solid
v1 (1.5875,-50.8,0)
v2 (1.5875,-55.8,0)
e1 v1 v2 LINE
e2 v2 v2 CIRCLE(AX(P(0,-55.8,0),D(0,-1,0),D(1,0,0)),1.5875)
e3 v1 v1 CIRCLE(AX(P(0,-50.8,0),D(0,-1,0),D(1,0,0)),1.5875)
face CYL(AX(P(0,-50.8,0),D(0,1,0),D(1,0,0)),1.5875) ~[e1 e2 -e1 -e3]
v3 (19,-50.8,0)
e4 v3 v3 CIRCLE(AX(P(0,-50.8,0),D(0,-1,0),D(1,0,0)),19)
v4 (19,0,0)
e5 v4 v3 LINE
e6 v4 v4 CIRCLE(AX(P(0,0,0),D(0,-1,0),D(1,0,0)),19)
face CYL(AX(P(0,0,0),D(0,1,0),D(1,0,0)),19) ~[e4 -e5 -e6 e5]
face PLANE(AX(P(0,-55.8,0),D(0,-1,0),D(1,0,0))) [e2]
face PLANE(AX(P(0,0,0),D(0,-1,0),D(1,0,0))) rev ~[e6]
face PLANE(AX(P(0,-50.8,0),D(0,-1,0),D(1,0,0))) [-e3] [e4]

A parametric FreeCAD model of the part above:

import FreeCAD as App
import Part
import Sketcher
Q = App.Units.Quantity

doc = App.newDocument("Part")
params = doc.addObject("Spreadsheet::Sheet", "Params")
for row, (alias, value) in enumerate([
    ("sketch1_diameter", "38 mm"),
    ("pad1_length", "50.8 mm"),
    ("pad2_length", "5 mm"),
], start=1):
    params.set(f"A{row}", alias)
    params.set(f"B{row}", "=" + value)
    params.setAlias(f"B{row}", alias)

body = doc.addObject("PartDesign::Body", "Body")

# Sketch on XZ plane
sketch1 = body.newObject("Sketcher::SketchObject", "Sketch")
sketch1.AttachmentSupport = (doc.getObject("XZ_Plane"), [""])
sketch1.MapMode = "FlatFace"
sketch1.addGeometry(Part.Circle(App.Vector(0, 0, 0), App.Vector(0, 0, 1), 19), False)
sketch1.addConstraint([
    Sketcher.Constraint("Coincident", 0, 3, -1, 1),
    Sketcher.Constraint("Diameter", 0, Q("38 mm")),
])
sketch1.setExpression("Constraints[1]", "Params.sketch1_diameter")
pad1 = body.newObject("PartDesign::Pad", "Pad")
pad1.Profile = sketch1
pad1.setExpression("Length", "Params.pad1_length")

# Sketch on XZ plane
sketch2 = body.newObject("Sketcher::SketchObject", "Sketch001")
sketch2.AttachmentSupport = (doc.getObject("XZ_Plane"), [""])
sketch2.MapMode = "FlatFace"
sketch2.AttachmentOffset = App.Placement(App.Vector(0, 0, 50.8), App.Rotation())
sketch2.addGeometry(Part.Circle(App.Vector(0, 0, 0), App.Vector(0, 0, 1), 1.5875), False)
sketch2.addConstraint([
    Sketcher.Constraint("Coincident", 0, 3, -1, 1),
    Sketcher.Constraint("Diameter", 0, Q("3.175 mm")),
])
pad2 = body.newObject("PartDesign::Pad", "Pad001")
pad2.Profile = sketch2
pad2.setExpression("Length", "Params.pad2_length")

doc.recompute()
